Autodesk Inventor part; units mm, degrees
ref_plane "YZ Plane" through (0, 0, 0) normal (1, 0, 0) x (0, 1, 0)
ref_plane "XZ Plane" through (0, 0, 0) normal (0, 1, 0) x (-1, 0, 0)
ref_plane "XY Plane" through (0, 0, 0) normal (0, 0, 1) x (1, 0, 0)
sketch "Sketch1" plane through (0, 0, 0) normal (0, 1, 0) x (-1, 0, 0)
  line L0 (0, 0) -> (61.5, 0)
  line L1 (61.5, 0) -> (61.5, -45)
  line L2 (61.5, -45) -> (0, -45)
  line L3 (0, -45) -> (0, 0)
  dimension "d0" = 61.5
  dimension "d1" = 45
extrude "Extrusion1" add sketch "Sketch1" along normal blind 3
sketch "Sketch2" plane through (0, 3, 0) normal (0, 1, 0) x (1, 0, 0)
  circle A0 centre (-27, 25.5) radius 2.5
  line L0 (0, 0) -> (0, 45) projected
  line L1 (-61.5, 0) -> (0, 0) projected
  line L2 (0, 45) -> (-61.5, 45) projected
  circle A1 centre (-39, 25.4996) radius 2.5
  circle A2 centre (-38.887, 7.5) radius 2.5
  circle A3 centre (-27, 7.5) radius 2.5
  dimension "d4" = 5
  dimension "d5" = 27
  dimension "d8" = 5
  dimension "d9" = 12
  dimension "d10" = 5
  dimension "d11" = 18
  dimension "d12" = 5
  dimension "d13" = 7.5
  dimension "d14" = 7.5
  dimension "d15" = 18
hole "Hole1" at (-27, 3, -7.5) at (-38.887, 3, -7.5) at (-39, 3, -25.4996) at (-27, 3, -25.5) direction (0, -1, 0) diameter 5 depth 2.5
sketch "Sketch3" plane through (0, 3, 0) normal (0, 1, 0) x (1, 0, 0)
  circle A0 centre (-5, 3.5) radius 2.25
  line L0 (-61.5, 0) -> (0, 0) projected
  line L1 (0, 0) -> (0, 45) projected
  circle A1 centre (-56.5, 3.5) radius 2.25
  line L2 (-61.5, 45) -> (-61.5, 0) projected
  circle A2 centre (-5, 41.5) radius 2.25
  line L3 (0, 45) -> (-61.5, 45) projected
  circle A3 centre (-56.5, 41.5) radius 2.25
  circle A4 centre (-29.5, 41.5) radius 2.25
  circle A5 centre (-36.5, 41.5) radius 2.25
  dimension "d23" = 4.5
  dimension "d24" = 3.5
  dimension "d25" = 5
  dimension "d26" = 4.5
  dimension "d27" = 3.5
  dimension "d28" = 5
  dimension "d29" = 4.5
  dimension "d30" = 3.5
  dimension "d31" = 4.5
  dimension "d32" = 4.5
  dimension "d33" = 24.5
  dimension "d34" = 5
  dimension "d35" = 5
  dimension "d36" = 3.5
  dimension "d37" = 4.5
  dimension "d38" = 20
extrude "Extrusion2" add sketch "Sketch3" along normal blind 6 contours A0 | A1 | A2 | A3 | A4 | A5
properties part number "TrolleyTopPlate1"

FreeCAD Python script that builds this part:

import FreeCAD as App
import Part
import Sketcher

V = App.Vector
Q = App.Units.Quantity

doc = App.newDocument("Part")
body = doc.addObject("PartDesign::Body", "Body")

# Sketch on XZ plane
sketch1 = body.newObject("Sketcher::SketchObject", "Sketch")
sketch1.AttachmentSupport = (doc.getObject("XZ_Plane"), [""])
sketch1.MapMode = "FlatFace"
sketch1.addGeometry(Part.LineSegment(V(-62, 0, 0), V(0, 0, 0)), False)
sketch1.addGeometry(Part.LineSegment(V(0, 0, 0), V(0, -45, 0)), False)
sketch1.addGeometry(Part.LineSegment(V(0, -45, 0), V(-62, -45, 0)), False)
sketch1.addGeometry(Part.LineSegment(V(-62, -45, 0), V(-62, 0, 0)), False)
sketch1.addConstraint(Sketcher.Constraint("Coincident", 0, 2, 1, 1))
sketch1.addConstraint(Sketcher.Constraint("Coincident", 1, 2, 2, 1))
sketch1.addConstraint(Sketcher.Constraint("Coincident", 2, 2, 3, 1))
sketch1.addConstraint(Sketcher.Constraint("Coincident", 3, 2, 0, 1))
sketch1.addConstraint(Sketcher.Constraint("Horizontal", 0))
sketch1.addConstraint(Sketcher.Constraint("Vertical", 1))
sketch1.addConstraint(Sketcher.Constraint("Horizontal", 2))
sketch1.addConstraint(Sketcher.Constraint("Vertical", 3))
sketch1.addConstraint(Sketcher.Constraint("Coincident", 0, 2, -1, 1))
sketch1.addConstraint(Sketcher.Constraint("DistanceY", 1, 2, 1, 1, Q("45 mm")))
sketch1.addConstraint(Sketcher.Constraint("DistanceX", 0, 1, 0, 2, Q("61.5 mm")))
pad1 = body.newObject("PartDesign::Pad", "Pad")
pad1.Profile = sketch1
pad1.Length = 3
pad1.Reversed = True

# Sketch on XZ plane
sketch2 = body.newObject("Sketcher::SketchObject", "Sketch001")
sketch2.AttachmentSupport = (doc.getObject("XZ_Plane"), [""])
sketch2.MapMode = "FlatFace"
sketch2.AttachmentOffset = App.Placement(V(0, 0, -3), App.Rotation())
sketch2.addGeometry(Part.Circle(V(-27, -7.5, 0), V(0, 0, 1), 2.5), False)
sketch2.addGeometry(Part.Circle(V(-38.9, -7.5, 0), V(0, 0, 1), 2.5), False)
sketch2.addGeometry(Part.Circle(V(-39, -25.5, 0), V(0, 0, 1), 2.5), False)
sketch2.addGeometry(Part.Circle(V(-27, -25.5, 0), V(0, 0, 1), 2.5), False)
sketch2.addConstraint(Sketcher.Constraint("Equal", 0, 1))
sketch2.addConstraint(Sketcher.Constraint("Equal", 1, 2))
sketch2.addConstraint(Sketcher.Constraint("Equal", 2, 3))
sketch2.addConstraint(Sketcher.Constraint("Horizontal", 0, 3, 1, 3))
sketch2.addConstraint(Sketcher.Constraint("Vertical", 0, 3, 3, 3))
sketch2.addConstraint(Sketcher.Constraint("Diameter", 0, Q("5 mm")))
sketch2.addConstraint(Sketcher.Constraint("DistanceX", 0, 3, -1, 1, Q("27 mm")))
sketch2.addConstraint(Sketcher.Constraint("DistanceX", 2, 3, -1, 1, Q("39 mm")))
sketch2.addConstraint(Sketcher.Constraint("DistanceY", 3, 3, 0, 3, Q("18 mm")))
sketch2.addConstraint(Sketcher.Constraint("DistanceY", 0, 3, -1, 1, Q("7.5 mm")))
sketch2.addConstraint(Sketcher.Constraint("DistanceX", 1, 3, -1, 1, Q("38.887 mm")))
sketch2.addConstraint(Sketcher.Constraint("DistanceY", 2, 3, -1, 1, Q("25.4996 mm")))
doc.recompute()
hole = body.newObject("PartDesign::Hole", "Hole")
hole.Profile = sketch2
hole.ThreadType = "None"
hole.Diameter = 5
hole.DepthType = "Dimension"
hole.Depth = 2.5
hole.DrillPoint = "Flat"
hole.Reversed = True

# Sketch on XZ plane
sketch3 = body.newObject("Sketcher::SketchObject", "Sketch002")
sketch3.AttachmentSupport = (doc.getObject("XZ_Plane"), [""])
sketch3.MapMode = "FlatFace"
sketch3.AttachmentOffset = App.Placement(V(0, 0, -3), App.Rotation())
sketch3.addGeometry(Part.Circle(V(-5, -3.5, 0), V(0, 0, 1), 2.2), False)
sketch3.addGeometry(Part.Circle(V(-56.5, -3.5, 0), V(0, 0, 1), 2.2), False)
sketch3.addGeometry(Part.Circle(V(-5, -41.5, 0), V(0, 0, 1), 2.2), False)
sketch3.addGeometry(Part.Circle(V(-56.5, -41.5, 0), V(0, 0, 1), 2.2), False)
sketch3.addGeometry(Part.Circle(V(-29.5, -41.5, 0), V(0, 0, 1), 2.2), False)
sketch3.addGeometry(Part.Circle(V(-36.5, -41.5, 0), V(0, 0, 1), 2.2), False)
sketch3.addConstraint(Sketcher.Constraint("Equal", 0, 1))
sketch3.addConstraint(Sketcher.Constraint("Equal", 1, 2))
sketch3.addConstraint(Sketcher.Constraint("Equal", 2, 3))
sketch3.addConstraint(Sketcher.Constraint("Equal", 3, 4))
sketch3.addConstraint(Sketcher.Constraint("Equal", 4, 5))
sketch3.addConstraint(Sketcher.Constraint("Horizontal", 0, 3, 1, 3))
sketch3.addConstraint(Sketcher.Constraint("Horizontal", 2, 3, 3, 3))
sketch3.addConstraint(Sketcher.Constraint("Horizontal", 3, 3, 4, 3))
sketch3.addConstraint(Sketcher.Constraint("Horizontal", 4, 3, 5, 3))
sketch3.addConstraint(Sketcher.Constraint("Vertical", 0, 3, 2, 3))
sketch3.addConstraint(Sketcher.Constraint("Vertical", 1, 3, 3, 3))
sketch3.addConstraint(Sketcher.Constraint("Diameter", 0, Q("4.5 mm")))
sketch3.addConstraint(Sketcher.Constraint("DistanceX", 0, 3, -1, 1, Q("5 mm")))
sketch3.addConstraint(Sketcher.Constraint("DistanceX", 3, 3, 5, 3, Q("20 mm")))
sketch3.addConstraint(Sketcher.Constraint("DistanceY", 0, 3, -1, 1, Q("3.5 mm")))
sketch3.addConstraint(Sketcher.Constraint("DistanceX", 4, 3, 2, 3, Q("24.5 mm")))
sketch3.addConstraint(Sketcher.Constraint("DistanceY", 2, 3, 0, 3, Q("38 mm")))
sketch3.addConstraint(Sketcher.Constraint("DistanceX", 3, 3, 4, 3, Q("27 mm")))
pad2 = body.newObject("PartDesign::Pad", "Pad001")
pad2.Profile = sketch3
pad2.Length = 6
pad2.Reversed = True

doc.recompute()
